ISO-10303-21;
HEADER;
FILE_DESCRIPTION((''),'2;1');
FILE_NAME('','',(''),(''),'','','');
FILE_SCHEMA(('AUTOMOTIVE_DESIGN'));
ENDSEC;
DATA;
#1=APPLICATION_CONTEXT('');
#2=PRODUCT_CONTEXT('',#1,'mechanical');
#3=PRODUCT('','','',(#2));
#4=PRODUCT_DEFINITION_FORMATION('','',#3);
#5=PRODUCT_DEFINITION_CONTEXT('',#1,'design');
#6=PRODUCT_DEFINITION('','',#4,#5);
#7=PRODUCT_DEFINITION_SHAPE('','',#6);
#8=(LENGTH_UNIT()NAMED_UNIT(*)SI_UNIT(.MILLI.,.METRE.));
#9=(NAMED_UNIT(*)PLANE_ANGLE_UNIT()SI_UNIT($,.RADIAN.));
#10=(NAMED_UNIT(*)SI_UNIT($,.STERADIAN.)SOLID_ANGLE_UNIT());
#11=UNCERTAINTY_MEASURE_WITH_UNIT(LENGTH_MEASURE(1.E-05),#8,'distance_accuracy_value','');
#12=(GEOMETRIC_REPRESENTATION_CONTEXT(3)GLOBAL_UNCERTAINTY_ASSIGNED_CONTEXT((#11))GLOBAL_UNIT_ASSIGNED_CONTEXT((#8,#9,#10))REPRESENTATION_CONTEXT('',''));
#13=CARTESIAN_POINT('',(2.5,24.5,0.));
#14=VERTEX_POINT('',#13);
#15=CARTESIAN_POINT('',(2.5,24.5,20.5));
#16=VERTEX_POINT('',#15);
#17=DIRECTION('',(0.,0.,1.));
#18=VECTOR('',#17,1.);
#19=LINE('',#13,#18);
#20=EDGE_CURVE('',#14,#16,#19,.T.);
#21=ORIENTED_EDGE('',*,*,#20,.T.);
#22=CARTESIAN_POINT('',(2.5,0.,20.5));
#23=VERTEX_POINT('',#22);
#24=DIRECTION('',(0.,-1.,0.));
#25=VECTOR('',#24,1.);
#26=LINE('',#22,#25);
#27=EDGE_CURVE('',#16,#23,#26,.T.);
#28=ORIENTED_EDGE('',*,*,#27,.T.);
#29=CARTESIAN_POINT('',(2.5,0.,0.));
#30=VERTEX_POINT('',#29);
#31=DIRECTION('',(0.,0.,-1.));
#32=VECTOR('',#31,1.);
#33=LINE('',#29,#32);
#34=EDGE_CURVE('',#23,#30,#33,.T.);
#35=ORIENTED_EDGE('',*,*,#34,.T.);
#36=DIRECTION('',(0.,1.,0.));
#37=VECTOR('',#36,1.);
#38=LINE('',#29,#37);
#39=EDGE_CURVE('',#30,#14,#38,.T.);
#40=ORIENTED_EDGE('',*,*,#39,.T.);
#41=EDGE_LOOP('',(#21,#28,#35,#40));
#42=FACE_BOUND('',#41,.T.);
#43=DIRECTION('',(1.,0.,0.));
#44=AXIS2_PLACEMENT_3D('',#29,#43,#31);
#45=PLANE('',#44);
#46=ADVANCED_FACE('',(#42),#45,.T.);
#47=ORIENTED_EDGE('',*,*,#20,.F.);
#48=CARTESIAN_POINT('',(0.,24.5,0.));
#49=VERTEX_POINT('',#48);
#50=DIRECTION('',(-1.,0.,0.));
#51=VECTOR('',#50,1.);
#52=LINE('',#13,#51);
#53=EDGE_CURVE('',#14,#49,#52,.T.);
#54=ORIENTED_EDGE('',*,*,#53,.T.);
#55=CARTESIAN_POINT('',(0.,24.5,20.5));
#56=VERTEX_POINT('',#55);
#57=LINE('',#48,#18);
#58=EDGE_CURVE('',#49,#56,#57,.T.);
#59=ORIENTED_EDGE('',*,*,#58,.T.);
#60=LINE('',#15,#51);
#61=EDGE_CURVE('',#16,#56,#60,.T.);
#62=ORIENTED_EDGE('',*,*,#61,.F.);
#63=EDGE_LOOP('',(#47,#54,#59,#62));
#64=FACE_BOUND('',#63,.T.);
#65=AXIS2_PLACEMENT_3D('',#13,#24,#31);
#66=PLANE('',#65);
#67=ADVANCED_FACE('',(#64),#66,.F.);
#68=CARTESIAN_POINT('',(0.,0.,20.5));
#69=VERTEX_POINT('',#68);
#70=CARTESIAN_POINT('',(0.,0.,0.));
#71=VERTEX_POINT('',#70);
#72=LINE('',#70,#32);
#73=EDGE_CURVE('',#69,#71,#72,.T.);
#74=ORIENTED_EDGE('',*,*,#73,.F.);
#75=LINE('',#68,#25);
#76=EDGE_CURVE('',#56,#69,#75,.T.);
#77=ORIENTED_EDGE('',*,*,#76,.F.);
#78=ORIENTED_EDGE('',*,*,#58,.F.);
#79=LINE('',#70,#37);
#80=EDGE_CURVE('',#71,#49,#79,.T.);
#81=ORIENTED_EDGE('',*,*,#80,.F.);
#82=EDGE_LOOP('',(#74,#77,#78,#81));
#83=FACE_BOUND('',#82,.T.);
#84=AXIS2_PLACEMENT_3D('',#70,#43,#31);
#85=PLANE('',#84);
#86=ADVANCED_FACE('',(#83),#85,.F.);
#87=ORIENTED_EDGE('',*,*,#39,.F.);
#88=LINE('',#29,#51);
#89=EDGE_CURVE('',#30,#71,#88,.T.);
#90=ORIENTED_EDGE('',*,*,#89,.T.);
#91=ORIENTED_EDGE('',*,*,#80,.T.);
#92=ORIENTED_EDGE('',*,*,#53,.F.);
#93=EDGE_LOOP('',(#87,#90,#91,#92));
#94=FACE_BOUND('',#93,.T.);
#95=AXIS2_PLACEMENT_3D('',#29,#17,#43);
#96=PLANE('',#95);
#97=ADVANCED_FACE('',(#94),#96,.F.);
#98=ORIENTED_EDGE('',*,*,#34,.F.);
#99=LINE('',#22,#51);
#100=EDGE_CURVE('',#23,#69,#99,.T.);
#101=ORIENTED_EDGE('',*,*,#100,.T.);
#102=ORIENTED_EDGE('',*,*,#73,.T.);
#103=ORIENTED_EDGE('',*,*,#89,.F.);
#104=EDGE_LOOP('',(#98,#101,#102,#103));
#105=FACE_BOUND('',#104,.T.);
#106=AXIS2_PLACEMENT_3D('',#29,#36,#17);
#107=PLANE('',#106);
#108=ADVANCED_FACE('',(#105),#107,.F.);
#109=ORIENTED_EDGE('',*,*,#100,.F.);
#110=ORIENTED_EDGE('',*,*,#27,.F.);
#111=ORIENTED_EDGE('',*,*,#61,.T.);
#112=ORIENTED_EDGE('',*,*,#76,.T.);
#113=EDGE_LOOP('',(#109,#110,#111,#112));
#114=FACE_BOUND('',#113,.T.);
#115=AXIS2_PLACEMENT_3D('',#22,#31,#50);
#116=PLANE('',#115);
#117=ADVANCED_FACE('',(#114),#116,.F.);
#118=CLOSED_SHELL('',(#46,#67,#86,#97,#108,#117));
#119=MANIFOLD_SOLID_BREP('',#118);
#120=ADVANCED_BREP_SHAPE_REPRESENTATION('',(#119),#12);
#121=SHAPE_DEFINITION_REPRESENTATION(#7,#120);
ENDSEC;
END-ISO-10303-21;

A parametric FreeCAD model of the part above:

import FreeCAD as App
import Part
import Sketcher
from FreeCAD import Vector
Q = App.Units.Quantity

doc = App.newDocument("Part")
body = doc.addObject("PartDesign::Body", "Body")

sketch1 = body.newObject("Sketcher::SketchObject", "Sketch")
sketch1.AttachmentSupport = (doc.getObject("YZ_Plane"), [""])
sketch1.MapMode = "FlatFace"
sketch1.addGeometry([
    Part.LineSegment(Vector(24, 20, 0), Vector(0, 20, 0)),
    Part.LineSegment(Vector(0, 20, 0), Vector(0, 0, 0)),
    Part.LineSegment(Vector(0, 0, 0), Vector(24, 0, 0)),
    Part.LineSegment(Vector(24, 0, 0), Vector(24, 20, 0)),
], False)
sketch1.addConstraint([
    Sketcher.Constraint("Coincident", 0, 2, 1, 1),
    Sketcher.Constraint("Coincident", 1, 2, 2, 1),
    Sketcher.Constraint("Coincident", 2, 2, 3, 1),
    Sketcher.Constraint("Coincident", 3, 2, 0, 1),
    Sketcher.Constraint("Horizontal", 0),
    Sketcher.Constraint("Vertical", 1),
    Sketcher.Constraint("Horizontal", 2),
    Sketcher.Constraint("Vertical", 3),
    Sketcher.Constraint("Coincident", 1, 2, -1, 1),
    Sketcher.Constraint("DistanceX", 0, 2, 0, 1, Q("24.5 mm")),
    Sketcher.Constraint("DistanceY", 1, 2, 1, 1, Q("20.5 mm")),
])
pad1 = body.newObject("PartDesign::Pad", "Pad")
pad1.Profile = sketch1
pad1.Length = 2.5

doc.recompute()
